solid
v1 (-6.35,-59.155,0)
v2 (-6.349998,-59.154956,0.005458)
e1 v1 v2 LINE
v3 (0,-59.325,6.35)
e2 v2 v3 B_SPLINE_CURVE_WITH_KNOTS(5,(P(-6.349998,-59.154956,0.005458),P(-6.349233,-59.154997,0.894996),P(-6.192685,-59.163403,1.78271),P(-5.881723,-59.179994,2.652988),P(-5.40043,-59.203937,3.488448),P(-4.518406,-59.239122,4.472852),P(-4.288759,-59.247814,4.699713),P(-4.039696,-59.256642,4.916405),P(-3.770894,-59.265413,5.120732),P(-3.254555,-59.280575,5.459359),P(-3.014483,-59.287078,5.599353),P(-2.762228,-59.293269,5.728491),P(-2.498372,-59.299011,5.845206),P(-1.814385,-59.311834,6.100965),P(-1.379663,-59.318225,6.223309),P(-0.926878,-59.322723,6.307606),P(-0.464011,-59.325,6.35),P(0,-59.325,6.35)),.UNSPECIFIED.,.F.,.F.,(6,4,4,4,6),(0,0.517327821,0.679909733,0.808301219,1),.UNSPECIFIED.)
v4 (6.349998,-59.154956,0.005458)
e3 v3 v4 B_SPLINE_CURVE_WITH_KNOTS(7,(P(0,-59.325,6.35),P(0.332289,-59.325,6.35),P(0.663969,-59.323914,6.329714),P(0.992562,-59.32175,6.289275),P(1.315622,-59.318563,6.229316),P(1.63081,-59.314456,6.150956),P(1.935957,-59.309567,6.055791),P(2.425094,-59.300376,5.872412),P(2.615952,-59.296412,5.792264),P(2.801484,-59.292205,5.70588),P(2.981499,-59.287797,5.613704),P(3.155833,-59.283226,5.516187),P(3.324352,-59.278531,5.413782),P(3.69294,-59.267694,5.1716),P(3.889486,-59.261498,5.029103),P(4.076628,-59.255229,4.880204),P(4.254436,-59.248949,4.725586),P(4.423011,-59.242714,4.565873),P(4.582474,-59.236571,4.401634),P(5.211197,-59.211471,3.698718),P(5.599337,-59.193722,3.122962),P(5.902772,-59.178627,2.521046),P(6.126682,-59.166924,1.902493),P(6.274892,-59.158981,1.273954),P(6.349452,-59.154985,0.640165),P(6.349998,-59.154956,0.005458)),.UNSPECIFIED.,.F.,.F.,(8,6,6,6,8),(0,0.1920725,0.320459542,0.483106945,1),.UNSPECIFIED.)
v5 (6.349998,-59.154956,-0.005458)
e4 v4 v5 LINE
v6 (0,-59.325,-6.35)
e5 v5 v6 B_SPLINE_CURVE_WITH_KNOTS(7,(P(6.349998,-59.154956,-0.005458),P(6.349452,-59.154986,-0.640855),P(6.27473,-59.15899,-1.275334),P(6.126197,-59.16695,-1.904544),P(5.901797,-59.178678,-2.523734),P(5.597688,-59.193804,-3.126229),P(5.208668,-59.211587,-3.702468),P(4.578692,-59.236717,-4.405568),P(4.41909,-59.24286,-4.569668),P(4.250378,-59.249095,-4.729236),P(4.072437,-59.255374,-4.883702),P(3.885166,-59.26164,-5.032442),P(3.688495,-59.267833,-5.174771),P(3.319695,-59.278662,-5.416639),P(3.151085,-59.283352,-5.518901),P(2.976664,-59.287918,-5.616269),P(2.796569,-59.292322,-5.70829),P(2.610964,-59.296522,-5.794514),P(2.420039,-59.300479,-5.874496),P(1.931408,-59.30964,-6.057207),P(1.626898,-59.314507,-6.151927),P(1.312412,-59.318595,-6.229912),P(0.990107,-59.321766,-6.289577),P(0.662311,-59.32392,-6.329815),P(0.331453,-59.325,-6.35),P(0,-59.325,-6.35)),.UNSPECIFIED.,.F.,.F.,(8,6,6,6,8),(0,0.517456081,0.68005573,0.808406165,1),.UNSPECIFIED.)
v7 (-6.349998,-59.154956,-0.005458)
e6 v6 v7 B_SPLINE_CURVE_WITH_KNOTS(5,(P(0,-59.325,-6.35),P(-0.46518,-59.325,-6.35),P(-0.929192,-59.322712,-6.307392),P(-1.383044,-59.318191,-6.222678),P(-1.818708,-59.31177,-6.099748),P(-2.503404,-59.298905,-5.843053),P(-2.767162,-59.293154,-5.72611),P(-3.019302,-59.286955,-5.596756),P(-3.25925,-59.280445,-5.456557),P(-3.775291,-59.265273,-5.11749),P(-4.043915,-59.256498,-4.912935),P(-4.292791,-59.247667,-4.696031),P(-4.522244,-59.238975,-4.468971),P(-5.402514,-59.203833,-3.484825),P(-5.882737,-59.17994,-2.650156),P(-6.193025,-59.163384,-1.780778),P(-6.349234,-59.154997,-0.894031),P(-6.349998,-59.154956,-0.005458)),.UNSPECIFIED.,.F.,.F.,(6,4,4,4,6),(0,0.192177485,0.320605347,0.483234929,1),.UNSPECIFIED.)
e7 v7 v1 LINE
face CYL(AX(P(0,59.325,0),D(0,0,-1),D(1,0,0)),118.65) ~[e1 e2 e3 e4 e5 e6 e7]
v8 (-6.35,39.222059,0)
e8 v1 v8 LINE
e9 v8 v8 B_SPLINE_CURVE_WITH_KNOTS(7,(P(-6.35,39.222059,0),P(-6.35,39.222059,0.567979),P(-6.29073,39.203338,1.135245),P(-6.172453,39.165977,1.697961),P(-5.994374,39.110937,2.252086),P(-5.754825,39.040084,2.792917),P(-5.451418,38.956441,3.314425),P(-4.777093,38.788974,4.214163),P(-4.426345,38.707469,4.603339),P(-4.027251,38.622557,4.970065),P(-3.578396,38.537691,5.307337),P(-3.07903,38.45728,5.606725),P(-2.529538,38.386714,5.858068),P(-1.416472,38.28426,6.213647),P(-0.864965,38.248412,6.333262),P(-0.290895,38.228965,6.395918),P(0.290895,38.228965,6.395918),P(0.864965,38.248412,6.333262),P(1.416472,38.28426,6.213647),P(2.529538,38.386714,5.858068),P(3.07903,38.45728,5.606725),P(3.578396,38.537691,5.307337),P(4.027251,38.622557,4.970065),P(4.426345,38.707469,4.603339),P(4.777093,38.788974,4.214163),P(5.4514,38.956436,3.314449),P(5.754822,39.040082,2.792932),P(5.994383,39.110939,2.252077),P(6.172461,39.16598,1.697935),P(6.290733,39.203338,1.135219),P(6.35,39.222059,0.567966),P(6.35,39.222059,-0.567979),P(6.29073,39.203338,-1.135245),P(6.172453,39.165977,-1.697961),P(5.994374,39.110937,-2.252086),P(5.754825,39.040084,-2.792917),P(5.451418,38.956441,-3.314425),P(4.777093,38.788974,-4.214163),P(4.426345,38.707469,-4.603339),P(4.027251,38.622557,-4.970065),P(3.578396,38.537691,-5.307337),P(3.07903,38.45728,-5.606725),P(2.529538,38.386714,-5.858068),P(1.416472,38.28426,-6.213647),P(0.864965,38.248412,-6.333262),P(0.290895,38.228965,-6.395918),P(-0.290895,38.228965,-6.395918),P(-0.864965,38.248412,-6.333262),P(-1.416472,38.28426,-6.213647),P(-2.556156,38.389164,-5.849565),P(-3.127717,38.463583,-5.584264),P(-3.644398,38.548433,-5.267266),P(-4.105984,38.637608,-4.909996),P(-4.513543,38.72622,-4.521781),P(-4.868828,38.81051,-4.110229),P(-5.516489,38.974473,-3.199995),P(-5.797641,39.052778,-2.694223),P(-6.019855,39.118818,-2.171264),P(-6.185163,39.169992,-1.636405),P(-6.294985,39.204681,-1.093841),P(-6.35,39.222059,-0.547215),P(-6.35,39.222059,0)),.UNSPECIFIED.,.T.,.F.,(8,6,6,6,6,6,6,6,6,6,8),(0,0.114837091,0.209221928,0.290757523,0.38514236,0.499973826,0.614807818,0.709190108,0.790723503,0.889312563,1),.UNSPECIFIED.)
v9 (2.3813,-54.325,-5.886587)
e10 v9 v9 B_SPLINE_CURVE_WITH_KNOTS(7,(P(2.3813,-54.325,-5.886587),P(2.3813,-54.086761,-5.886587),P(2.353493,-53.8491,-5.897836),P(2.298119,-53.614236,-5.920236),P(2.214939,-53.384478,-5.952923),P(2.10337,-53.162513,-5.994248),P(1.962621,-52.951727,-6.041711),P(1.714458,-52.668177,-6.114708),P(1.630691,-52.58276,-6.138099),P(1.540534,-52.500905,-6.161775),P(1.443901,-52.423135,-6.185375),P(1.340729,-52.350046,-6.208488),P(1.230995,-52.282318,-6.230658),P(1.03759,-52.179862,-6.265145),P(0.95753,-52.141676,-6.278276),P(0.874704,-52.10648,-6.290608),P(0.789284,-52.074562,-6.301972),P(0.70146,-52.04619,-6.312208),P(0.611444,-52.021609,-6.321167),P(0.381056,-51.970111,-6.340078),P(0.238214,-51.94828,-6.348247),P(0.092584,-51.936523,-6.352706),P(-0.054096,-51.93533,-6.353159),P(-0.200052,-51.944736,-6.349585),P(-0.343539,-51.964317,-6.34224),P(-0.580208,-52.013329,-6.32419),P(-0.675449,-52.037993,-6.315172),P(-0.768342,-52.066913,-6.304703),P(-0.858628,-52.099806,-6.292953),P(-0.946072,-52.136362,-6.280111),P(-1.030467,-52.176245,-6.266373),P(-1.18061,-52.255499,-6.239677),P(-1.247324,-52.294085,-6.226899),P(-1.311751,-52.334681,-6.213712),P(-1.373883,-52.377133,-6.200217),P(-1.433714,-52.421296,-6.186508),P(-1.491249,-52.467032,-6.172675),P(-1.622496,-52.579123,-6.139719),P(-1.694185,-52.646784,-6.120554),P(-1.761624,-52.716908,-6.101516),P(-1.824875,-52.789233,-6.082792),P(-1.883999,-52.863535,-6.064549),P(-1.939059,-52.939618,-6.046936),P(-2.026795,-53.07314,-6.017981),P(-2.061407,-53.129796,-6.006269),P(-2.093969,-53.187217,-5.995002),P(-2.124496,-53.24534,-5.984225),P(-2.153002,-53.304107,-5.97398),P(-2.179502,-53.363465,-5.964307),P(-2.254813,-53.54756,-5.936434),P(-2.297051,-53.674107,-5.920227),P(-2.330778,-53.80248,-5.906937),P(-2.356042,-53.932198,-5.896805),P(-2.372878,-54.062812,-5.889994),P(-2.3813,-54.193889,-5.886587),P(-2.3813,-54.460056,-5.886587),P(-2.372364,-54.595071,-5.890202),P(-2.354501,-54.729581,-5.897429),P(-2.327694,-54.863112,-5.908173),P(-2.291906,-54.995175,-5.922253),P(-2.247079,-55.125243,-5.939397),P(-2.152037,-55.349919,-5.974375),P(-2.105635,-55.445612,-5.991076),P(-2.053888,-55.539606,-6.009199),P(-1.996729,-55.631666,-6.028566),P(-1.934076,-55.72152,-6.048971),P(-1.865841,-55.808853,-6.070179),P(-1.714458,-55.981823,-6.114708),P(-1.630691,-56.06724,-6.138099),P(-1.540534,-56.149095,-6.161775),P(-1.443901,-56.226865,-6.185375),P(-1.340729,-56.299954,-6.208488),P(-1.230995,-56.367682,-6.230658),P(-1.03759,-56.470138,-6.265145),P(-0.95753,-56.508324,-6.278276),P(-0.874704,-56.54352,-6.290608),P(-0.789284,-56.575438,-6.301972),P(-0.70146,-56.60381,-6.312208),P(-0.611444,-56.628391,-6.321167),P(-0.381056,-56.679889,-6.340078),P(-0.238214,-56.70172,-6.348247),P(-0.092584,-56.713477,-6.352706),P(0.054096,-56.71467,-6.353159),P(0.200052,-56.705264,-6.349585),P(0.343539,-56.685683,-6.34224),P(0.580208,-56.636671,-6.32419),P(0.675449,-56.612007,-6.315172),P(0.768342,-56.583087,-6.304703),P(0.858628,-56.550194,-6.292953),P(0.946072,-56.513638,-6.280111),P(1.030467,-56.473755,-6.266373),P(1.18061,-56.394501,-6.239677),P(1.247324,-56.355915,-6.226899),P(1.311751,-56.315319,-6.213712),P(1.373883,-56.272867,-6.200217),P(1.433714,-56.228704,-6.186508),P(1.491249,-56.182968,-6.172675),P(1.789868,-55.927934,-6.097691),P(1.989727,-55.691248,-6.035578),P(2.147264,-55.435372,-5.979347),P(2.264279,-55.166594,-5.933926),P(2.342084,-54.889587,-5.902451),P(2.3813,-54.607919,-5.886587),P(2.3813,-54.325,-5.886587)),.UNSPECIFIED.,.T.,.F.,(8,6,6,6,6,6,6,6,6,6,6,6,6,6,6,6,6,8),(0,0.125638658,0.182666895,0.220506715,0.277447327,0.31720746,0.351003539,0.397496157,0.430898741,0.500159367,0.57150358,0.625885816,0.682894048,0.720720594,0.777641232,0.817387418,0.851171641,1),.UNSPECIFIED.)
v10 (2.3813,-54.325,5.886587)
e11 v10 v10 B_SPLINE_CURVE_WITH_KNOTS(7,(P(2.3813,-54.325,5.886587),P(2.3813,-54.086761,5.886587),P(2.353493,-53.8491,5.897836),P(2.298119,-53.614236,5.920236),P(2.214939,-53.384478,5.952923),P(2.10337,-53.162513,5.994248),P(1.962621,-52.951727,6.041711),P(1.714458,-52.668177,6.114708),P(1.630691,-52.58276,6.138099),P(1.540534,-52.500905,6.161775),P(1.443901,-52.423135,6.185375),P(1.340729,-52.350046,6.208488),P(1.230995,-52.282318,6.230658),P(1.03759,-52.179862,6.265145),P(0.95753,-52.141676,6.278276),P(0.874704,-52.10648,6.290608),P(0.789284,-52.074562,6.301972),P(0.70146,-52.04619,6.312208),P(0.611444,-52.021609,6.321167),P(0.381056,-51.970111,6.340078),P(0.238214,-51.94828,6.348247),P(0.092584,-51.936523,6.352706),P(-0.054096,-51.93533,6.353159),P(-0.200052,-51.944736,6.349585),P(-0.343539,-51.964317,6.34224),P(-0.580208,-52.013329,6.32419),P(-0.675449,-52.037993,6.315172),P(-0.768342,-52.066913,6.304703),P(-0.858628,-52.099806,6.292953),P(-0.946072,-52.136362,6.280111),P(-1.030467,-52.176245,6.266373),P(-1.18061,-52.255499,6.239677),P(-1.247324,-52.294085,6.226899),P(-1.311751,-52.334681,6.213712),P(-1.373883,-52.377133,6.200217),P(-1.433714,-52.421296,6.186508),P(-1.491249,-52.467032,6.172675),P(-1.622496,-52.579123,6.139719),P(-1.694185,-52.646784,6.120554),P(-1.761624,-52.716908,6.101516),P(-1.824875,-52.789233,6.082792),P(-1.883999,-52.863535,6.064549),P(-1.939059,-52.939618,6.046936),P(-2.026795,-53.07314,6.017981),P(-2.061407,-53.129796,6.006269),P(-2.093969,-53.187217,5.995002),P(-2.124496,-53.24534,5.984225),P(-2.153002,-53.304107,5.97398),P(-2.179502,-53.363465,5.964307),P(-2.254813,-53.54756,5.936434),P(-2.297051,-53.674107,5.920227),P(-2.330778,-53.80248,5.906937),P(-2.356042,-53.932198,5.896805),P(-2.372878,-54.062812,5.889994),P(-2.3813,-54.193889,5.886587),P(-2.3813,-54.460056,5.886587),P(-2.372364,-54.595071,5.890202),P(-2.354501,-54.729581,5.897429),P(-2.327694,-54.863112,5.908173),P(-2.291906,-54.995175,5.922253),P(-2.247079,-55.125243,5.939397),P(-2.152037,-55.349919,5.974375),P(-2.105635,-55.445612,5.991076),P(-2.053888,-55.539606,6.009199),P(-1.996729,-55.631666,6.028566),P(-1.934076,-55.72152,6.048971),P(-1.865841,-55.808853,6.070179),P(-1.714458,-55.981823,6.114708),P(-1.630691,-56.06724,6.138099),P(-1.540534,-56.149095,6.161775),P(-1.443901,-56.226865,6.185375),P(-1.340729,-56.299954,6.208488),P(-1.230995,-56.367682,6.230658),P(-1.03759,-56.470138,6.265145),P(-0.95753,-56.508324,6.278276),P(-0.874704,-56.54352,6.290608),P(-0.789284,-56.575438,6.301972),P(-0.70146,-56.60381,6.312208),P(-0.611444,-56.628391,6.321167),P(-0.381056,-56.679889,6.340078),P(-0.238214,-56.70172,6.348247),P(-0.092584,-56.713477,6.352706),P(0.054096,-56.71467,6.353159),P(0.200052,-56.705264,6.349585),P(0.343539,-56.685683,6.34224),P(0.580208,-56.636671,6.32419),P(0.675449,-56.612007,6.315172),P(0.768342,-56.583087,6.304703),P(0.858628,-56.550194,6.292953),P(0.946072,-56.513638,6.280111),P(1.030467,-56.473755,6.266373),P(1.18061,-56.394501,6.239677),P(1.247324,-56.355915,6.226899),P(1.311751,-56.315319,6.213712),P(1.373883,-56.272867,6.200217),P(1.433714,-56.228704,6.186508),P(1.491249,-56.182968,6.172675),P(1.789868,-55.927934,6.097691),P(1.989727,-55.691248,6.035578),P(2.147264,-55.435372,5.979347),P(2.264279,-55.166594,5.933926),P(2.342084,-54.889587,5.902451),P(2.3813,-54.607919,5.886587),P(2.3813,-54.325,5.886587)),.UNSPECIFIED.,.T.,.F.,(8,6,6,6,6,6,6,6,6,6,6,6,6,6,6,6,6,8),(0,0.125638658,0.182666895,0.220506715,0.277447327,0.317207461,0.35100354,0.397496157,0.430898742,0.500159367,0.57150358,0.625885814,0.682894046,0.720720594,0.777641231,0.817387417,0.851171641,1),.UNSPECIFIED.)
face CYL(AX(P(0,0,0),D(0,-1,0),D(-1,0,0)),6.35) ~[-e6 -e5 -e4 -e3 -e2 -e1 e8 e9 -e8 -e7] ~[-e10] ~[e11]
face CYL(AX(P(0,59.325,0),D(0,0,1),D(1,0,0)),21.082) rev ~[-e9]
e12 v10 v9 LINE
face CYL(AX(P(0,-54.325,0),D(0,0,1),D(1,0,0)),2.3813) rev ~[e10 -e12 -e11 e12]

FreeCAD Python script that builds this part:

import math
import FreeCAD as App
import Part
import Sketcher
from FreeCAD import Vector
Q = App.Units.Quantity

doc = App.newDocument("Part")
body = doc.addObject("PartDesign::Body", "Body")

sketch1 = body.newObject("Sketcher::SketchObject", "Sketch")
sketch1.AttachmentSupport = (doc.getObject("XZ_Plane"), [""])
sketch1.MapMode = "FlatFace"
sketch1.addGeometry(Part.Circle(Vector(0, 0, 0), Vector(0, 0, 1), 6), False)
sketch1.addConstraint(Sketcher.Constraint("Coincident", 0, 3, -1, 1))
sketch1.addConstraint(Sketcher.Constraint("Diameter", 0, Q("0.5 in")))
pad1 = body.newObject("PartDesign::Pad", "Pad")
pad1.Profile = sketch1
pad1.Length = 118.65
pad1.Midplane = True

sketch2 = body.newObject("Sketcher::SketchObject", "Sketch001")
sketch2.AttachmentSupport = (doc.getObject("XY_Plane"), [""])
sketch2.MapMode = "FlatFace"
sketch2.addGeometry(Part.Circle(Vector(0, 59.33, 0), Vector(0, 0, 1), 21.08), False)
sketch2.addGeometry(Part.LineSegment(Vector(6.35, -59.33, 0), Vector(6.35, -59.16, 0)), False)
sketch2.addGeometry(Part.ArcOfCircle(Part.Circle(Vector(0, 59.33, 0), Vector(0, 0, 1), 118.65), math.radians(-90), math.radians(-86.93)), False)
sketch2.addGeometry(Part.LineSegment(Vector(0, -59.33, 0), Vector(6.35, -59.33, 0)), False)
sketch2.addGeometry(Part.ArcOfCircle(Part.Circle(Vector(0, 59.33, 0), Vector(0, 0, 1), 118.65), math.radians(-93.07), math.radians(-90)), False)
sketch2.addGeometry(Part.LineSegment(Vector(-6.35, -59.16, 0), Vector(-6.35, -59.33, 0)), False)
sketch2.addGeometry(Part.LineSegment(Vector(-6.35, -59.33, 0), Vector(0, -59.33, 0)), False)
sketch2.addGeometry(Part.Circle(Vector(0, -54.33, 0), Vector(0, 0, 1), 2.38), False)
sketch2.addConstraint(Sketcher.Constraint("Coincident", 1, 2, 2, 2))
sketch2.addConstraint(Sketcher.Constraint("Tangent", 2, 1, 3, 1))
sketch2.addConstraint(Sketcher.Constraint("Coincident", 3, 2, 1, 1))
sketch2.addConstraint(Sketcher.Constraint("Coincident", 4, 1, 5, 1))
sketch2.addConstraint(Sketcher.Constraint("Coincident", 5, 2, 6, 1))
sketch2.addConstraint(Sketcher.Constraint("Tangent", 6, 2, 4, 2))
sketch2.addConstraint(Sketcher.Constraint("Vertical", 1))
sketch2.addConstraint(Sketcher.Constraint("Horizontal", 3))
sketch2.addConstraint(Sketcher.Constraint("Vertical", 5))
sketch2.addConstraint(Sketcher.Constraint("Horizontal", 6))
sketch2.addConstraint(Sketcher.Constraint("Coincident", 2, 3, 0, 3))
sketch2.addConstraint(Sketcher.Constraint("Coincident", 4, 3, 0, 3))
sketch2.addConstraint(Sketcher.Constraint("Equal", 2, 4))
sketch2.addConstraint(Sketcher.Constraint("Symmetric", 1, 2, 4, 1, -2))
sketch2.addConstraint(Sketcher.Constraint("PointOnObject", 7, 3, -2))
sketch2.addConstraint(Sketcher.Constraint("Diameter", 0, Q("1.66 in")))
sketch2.addConstraint(Sketcher.Constraint("Diameter", 7, Q("0.1875 in")))
sketch2.addConstraint(Sketcher.Constraint("DistanceX", 3, 1, 3, 2, Q("0.25 in")))
sketch2.addConstraint(Sketcher.Constraint("Radius", 2, 118.65))
sketch2.addConstraint(Sketcher.Constraint("DistanceY", 2, 1, 7, 3, 5.0))
sketch2.addConstraint(Sketcher.Constraint("DistanceY", -1, 1, 0, 3, 59.325))
pocket1 = body.newObject("PartDesign::Pocket", "Pocket")
pocket1.Profile = sketch2
pocket1.Type = "ThroughAll"
pocket1.Midplane = True

doc.recompute()
